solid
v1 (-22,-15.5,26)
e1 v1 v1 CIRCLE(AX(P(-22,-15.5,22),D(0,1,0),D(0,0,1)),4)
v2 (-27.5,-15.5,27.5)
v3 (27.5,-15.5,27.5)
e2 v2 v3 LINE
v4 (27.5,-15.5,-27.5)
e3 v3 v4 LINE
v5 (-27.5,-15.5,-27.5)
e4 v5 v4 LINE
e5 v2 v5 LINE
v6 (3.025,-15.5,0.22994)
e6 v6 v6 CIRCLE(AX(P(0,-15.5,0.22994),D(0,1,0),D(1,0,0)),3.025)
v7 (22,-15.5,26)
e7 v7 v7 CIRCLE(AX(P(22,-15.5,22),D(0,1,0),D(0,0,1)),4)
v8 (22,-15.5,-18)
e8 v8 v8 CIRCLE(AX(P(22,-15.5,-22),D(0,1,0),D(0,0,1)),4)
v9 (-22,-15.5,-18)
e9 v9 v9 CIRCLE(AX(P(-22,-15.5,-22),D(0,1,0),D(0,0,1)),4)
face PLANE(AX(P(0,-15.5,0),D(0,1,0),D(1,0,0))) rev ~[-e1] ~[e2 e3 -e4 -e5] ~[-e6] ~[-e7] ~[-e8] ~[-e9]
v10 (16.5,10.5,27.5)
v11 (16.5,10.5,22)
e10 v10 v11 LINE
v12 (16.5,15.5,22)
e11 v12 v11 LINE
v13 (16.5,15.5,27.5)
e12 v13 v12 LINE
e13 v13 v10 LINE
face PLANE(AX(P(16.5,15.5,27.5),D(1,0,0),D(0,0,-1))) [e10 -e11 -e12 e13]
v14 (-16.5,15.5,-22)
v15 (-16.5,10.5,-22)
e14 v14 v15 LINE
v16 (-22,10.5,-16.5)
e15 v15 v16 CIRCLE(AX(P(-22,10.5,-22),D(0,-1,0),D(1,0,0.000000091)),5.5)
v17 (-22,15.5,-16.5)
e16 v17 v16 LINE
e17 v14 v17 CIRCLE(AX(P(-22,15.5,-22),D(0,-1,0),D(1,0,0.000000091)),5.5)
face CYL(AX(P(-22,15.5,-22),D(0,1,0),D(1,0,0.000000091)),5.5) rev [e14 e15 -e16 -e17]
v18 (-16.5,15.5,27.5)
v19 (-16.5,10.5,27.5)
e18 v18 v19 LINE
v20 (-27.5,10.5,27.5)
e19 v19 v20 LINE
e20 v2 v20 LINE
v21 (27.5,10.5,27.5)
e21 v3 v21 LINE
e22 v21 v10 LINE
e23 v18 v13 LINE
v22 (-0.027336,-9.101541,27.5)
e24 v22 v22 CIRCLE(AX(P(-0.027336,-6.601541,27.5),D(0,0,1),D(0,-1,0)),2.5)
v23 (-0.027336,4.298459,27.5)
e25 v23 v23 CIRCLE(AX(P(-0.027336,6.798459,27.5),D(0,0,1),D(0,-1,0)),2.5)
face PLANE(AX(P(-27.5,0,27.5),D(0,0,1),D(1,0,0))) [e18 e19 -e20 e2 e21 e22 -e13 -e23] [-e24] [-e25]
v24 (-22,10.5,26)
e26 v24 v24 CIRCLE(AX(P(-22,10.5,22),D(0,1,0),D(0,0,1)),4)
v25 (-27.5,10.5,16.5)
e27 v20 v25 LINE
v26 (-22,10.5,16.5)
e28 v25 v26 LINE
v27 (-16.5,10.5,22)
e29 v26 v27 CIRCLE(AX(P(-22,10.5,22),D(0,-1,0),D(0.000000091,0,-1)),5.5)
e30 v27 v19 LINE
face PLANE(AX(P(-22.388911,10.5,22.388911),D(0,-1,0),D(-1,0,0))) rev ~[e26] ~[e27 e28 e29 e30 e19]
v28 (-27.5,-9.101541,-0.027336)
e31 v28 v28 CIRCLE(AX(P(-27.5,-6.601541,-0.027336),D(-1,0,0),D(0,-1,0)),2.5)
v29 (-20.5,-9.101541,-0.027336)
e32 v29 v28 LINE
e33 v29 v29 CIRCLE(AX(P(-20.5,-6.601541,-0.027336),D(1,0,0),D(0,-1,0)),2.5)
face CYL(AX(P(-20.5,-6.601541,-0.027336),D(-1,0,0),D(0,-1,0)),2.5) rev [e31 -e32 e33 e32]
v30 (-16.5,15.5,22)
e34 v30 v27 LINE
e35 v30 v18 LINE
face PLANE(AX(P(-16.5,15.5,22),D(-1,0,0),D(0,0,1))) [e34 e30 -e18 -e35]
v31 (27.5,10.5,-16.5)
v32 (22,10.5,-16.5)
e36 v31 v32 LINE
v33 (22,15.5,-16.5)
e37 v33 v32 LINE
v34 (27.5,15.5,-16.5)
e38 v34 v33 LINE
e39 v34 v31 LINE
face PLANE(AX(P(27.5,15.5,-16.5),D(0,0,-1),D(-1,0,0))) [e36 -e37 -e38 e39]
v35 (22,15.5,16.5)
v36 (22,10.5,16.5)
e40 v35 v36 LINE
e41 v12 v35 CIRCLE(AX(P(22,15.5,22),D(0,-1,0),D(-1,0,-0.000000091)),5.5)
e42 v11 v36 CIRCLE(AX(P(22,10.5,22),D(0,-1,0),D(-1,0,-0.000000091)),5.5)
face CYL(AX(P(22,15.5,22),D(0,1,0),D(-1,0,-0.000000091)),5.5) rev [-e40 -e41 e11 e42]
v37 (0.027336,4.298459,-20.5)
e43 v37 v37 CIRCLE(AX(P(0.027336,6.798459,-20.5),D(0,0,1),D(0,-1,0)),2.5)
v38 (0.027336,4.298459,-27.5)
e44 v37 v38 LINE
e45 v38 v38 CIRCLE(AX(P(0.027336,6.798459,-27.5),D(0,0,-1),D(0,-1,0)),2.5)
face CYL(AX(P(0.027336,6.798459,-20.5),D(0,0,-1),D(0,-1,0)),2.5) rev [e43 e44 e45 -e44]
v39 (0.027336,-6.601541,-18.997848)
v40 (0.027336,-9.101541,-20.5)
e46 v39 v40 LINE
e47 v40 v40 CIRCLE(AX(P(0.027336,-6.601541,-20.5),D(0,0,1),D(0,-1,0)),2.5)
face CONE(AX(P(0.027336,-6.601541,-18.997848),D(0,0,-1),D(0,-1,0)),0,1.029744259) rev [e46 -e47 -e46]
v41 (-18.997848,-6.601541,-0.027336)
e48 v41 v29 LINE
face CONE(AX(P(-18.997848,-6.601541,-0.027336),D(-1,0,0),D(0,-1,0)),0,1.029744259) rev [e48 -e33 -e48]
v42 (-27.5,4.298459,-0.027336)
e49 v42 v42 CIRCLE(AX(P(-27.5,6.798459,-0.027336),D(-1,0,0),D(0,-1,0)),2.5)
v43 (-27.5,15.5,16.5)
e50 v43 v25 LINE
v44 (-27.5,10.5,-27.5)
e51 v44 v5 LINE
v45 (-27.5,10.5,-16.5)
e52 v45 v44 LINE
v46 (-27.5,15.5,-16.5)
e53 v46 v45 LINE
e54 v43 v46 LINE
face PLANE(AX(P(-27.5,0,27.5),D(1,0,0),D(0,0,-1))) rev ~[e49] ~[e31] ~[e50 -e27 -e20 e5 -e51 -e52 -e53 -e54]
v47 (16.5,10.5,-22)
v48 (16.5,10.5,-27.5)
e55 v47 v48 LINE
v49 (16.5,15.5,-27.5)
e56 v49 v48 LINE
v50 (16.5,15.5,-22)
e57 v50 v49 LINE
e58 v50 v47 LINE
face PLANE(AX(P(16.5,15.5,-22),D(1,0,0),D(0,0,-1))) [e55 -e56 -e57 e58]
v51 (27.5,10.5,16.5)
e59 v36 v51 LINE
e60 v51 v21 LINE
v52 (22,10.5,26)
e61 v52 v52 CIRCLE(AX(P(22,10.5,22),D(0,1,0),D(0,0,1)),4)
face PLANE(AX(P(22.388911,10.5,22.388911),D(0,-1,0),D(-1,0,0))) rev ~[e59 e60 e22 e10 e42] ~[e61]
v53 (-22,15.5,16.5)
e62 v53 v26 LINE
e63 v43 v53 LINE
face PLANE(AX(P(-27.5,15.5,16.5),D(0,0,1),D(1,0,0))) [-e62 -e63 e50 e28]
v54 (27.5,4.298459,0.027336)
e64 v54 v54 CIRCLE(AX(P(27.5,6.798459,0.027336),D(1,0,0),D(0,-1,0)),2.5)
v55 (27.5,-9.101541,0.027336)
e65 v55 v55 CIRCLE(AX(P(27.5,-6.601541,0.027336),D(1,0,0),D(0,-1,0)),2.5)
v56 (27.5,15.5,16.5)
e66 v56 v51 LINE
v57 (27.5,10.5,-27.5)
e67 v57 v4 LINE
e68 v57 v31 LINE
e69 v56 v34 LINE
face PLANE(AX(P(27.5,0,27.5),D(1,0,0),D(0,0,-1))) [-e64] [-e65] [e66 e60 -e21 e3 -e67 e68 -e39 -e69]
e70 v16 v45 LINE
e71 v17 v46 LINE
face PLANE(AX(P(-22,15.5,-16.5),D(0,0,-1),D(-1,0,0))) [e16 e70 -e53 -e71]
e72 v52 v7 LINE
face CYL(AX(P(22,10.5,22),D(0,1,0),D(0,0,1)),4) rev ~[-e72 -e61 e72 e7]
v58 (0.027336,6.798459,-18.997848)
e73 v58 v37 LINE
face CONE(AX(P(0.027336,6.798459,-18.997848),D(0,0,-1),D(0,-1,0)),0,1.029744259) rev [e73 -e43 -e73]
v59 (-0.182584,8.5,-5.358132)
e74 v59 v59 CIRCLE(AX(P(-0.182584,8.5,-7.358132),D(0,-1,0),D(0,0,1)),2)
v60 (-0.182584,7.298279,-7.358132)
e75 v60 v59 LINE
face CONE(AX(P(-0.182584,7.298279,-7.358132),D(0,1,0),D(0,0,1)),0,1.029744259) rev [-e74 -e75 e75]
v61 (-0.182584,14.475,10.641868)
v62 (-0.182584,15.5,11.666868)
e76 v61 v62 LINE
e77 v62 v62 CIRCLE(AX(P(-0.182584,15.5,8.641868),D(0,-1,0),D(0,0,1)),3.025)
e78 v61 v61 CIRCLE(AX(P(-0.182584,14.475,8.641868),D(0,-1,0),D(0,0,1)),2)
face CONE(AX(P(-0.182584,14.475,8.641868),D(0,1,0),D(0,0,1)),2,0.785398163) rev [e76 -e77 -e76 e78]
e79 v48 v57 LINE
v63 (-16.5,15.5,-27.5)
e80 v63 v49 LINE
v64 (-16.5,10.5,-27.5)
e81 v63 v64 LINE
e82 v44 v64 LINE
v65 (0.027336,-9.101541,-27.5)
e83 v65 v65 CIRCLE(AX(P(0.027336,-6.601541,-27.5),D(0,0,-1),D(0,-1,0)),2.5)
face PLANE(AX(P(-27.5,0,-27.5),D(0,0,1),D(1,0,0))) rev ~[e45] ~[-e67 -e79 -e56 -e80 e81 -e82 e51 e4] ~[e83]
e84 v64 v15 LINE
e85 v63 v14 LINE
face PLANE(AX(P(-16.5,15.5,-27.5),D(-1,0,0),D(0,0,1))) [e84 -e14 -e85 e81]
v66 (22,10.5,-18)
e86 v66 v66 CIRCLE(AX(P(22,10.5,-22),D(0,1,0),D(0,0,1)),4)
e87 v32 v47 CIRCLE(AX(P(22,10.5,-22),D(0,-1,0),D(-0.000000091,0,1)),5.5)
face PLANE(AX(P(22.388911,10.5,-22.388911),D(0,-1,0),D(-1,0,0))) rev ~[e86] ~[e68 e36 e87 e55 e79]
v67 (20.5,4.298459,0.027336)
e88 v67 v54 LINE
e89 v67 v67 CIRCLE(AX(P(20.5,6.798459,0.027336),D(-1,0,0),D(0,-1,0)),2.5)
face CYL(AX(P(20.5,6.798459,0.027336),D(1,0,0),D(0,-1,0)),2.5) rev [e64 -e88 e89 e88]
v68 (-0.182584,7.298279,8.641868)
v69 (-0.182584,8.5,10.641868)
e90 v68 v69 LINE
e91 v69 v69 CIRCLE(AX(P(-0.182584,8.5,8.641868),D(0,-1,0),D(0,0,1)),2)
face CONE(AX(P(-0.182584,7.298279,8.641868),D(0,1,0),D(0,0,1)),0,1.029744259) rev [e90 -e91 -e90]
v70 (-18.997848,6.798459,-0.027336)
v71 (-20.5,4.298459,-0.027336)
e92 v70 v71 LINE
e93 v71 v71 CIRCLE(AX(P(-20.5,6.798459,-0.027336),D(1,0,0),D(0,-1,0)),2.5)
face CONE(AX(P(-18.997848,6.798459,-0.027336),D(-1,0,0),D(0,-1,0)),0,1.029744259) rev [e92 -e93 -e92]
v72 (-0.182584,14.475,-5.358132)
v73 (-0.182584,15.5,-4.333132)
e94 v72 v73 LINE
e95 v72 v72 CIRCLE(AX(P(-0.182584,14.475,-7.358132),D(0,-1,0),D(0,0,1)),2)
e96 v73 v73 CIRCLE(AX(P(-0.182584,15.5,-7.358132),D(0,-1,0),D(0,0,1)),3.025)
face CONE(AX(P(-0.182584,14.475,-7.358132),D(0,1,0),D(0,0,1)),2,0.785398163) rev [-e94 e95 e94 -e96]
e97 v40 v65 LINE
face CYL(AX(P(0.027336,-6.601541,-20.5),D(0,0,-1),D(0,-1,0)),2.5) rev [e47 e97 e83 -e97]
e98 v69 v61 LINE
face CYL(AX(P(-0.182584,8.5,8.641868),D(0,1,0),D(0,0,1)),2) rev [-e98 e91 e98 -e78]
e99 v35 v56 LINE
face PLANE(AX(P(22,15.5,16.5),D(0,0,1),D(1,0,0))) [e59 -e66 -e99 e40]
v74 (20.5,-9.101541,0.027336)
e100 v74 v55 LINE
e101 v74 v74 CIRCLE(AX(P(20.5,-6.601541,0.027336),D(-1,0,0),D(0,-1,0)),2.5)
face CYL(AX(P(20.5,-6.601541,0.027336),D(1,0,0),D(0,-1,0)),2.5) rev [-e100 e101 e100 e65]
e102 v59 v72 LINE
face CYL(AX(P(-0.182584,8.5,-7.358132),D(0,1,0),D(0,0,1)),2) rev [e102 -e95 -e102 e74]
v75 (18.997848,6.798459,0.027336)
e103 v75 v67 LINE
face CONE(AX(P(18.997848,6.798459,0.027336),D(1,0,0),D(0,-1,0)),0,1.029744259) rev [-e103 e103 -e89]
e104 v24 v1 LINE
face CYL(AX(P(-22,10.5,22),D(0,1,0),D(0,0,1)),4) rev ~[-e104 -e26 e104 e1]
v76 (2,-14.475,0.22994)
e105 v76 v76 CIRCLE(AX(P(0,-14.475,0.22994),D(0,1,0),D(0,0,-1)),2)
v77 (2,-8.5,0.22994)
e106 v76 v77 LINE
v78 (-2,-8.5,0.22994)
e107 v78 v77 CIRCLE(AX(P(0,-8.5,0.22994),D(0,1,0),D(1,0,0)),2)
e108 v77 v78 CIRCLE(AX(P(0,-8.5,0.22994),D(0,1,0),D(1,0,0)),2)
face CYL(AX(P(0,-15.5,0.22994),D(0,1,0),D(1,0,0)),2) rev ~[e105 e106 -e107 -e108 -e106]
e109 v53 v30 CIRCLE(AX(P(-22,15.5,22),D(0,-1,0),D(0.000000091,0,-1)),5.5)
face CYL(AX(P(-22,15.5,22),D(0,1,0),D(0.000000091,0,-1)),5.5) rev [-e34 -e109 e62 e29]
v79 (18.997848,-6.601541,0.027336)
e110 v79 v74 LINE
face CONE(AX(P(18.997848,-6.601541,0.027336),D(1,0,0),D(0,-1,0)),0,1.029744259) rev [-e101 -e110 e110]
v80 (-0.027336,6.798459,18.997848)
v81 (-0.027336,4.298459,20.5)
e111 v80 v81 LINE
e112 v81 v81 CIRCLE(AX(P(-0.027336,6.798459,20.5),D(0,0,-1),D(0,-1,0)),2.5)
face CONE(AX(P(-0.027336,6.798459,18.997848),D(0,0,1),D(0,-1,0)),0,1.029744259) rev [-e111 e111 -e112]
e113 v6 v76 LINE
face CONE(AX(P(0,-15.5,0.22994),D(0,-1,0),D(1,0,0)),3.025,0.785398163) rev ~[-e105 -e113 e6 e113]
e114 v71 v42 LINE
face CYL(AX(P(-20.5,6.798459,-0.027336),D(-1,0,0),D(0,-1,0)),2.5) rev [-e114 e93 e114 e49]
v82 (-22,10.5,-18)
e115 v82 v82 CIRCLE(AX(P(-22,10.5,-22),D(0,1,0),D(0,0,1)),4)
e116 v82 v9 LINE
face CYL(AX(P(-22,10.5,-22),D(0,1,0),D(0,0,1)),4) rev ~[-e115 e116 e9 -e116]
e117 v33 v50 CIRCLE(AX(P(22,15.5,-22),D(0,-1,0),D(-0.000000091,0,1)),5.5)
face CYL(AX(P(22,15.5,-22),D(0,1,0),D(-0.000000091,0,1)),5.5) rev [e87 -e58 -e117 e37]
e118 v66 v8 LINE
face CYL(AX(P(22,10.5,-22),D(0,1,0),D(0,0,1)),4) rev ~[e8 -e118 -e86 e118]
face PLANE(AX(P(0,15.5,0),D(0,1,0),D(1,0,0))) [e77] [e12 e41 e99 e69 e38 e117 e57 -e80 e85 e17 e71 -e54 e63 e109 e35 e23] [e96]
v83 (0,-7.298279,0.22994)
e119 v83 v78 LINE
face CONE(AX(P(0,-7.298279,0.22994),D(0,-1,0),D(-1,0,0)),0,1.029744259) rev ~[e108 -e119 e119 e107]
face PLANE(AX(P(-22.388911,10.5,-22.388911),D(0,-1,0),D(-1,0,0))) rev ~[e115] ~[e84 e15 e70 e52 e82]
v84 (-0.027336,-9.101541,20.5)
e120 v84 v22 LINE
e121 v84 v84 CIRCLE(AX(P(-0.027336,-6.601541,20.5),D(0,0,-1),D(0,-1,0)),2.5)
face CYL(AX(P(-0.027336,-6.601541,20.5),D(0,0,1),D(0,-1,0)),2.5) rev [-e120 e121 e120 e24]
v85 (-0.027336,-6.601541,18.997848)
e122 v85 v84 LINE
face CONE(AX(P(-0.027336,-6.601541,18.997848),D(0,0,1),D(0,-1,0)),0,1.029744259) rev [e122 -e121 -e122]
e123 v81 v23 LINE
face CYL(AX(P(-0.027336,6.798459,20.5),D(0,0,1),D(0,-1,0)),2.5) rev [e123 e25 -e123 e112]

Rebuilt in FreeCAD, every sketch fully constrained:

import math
import FreeCAD as App
import Part
import Sketcher

V = App.Vector
Q = App.Units.Quantity

doc = App.newDocument("Part")
params = doc.addObject("Spreadsheet::Sheet", "Params")
for row, (alias, value) in enumerate([
    ("sketch1_width", "55 mm"),
    ("pad1_length", "31 mm"),
    ("sketch2_radius", "5.5 mm"),
    ("sketch2_width", "11 mm"),
    ("pocket1_length", "5 mm"),
    ("sketch3_diameter", "8 mm"),
    ("sketch4_width", "2 mm"),
    ("sketch4_height", "7.5 mm"),
    ("groove_angle", "360 deg"),
    ("groove2_angle", "360 deg"),
    ("linearpattern_pitch", "16 mm"),
    ("linearpattern2_pitch", "13.4 mm"),
    ("sketch6_height", "2 mm"),
    ("sketch6_width", "7.5 mm"),
    ("groove3_angle", "360 deg"),
    ("sketch7_width", "2 mm"),
    ("sketch7_height", "7.5 mm"),
    ("groove4_angle", "360 deg"),
    ("sketch8_height", "2 mm"),
    ("sketch8_width", "7.5 mm"),
    ("groove5_angle", "360 deg"),
    ("sketch9_diameter", "4 mm"),
    ("hole_diameter", "4 mm"),
    ("hole_depth", "7 mm"),
    ("hole_csink_diameter", "6.05 mm"),
], start=1):
    params.set(f"A{row}", alias)
    params.set(f"B{row}", "=" + value)
    params.setAlias(f"B{row}", alias)

body = doc.addObject("PartDesign::Body", "Body")

# Sketch on XZ plane
sketch1 = body.newObject("Sketcher::SketchObject", "Sketch")
sketch1.AttachmentSupport = (doc.getObject("XZ_Plane"), [""])
sketch1.MapMode = "FlatFace"
sketch1.addGeometry(Part.LineSegment(V(-28, -28, 0), V(-28, 28, 0)), False)
sketch1.addGeometry(Part.LineSegment(V(-28, 28, 0), V(28, 28, 0)), False)
sketch1.addGeometry(Part.LineSegment(V(28, 28, 0), V(28, -28, 0)), False)
sketch1.addGeometry(Part.LineSegment(V(28, -28, 0), V(-28, -28, 0)), False)
sketch1.addConstraint(Sketcher.Constraint("Coincident", 0, 2, 1, 1))
sketch1.addConstraint(Sketcher.Constraint("Coincident", 1, 2, 2, 1))
sketch1.addConstraint(Sketcher.Constraint("Coincident", 2, 2, 3, 1))
sketch1.addConstraint(Sketcher.Constraint("Coincident", 3, 2, 0, 1))
sketch1.addConstraint(Sketcher.Constraint("Vertical", 0))
sketch1.addConstraint(Sketcher.Constraint("Horizontal", 1))
sketch1.addConstraint(Sketcher.Constraint("Vertical", 2))
sketch1.addConstraint(Sketcher.Constraint("Horizontal", 3))
sketch1.addConstraint(Sketcher.Constraint("Symmetric", 0, 2, 2, 2, -1, 1))
sketch1.addConstraint(Sketcher.Constraint("Equal", 3, 0))
sketch1.addConstraint(Sketcher.Constraint("DistanceX", 1, 1, 1, 2, Q("55 mm")))
sketch1.setExpression("Constraints[10]", "Params.sketch1_width")
pad1 = body.newObject("PartDesign::Pad", "Pad")
pad1.Profile = sketch1
pad1.setExpression("Length", "Params.pad1_length")
pad1.Midplane = True

# Sketch on XZ plane
sketch2 = body.newObject("Sketcher::SketchObject", "Sketch001")
sketch2.AttachmentSupport = (doc.getObject("XZ_Plane"), [""])
sketch2.MapMode = "FlatFace"
sketch2.AttachmentOffset = App.Placement(V(0, 0, -15.5), App.Rotation())
sketch2.addGeometry(Part.LineSegment(V(16, -28, 0), V(16, -22, 0)), False)
sketch2.addGeometry(Part.ArcOfCircle(Part.Circle(V(22, -22, 0), V(0, 0, 1), 6), math.radians(90), math.radians(180)), False)
sketch2.addGeometry(Part.LineSegment(V(22, -16, 0), V(28, -16, 0)), False)
sketch2.addGeometry(Part.LineSegment(V(28, -16, 0), V(28, -28, 0)), False)
sketch2.addGeometry(Part.LineSegment(V(28, -28, 0), V(16, -28, 0)), False)
sketch2.addGeometry(Part.LineSegment(V(28, 16, 0), V(22, 16, 0)), False)
sketch2.addGeometry(Part.ArcOfCircle(Part.Circle(V(22, 22, 0), V(0, 0, 1), 6), math.radians(-180), math.radians(-90)), False)
sketch2.addGeometry(Part.LineSegment(V(16, 22, 0), V(16, 28, 0)), False)
sketch2.addGeometry(Part.LineSegment(V(16, 28, 0), V(28, 28, 0)), False)
sketch2.addGeometry(Part.LineSegment(V(28, 28, 0), V(28, 16, 0)), False)
sketch2.addGeometry(Part.LineSegment(V(-16, 28, 0), V(-16, 22, 0)), False)
sketch2.addGeometry(Part.ArcOfCircle(Part.Circle(V(-22, 22, 0), V(0, 0, 1), 6), math.radians(-90), math.radians(0)), False)
sketch2.addGeometry(Part.LineSegment(V(-22, 16, 0), V(-28, 16, 0)), False)
sketch2.addGeometry(Part.LineSegment(V(-28, 16, 0), V(-28, 28, 0)), False)
sketch2.addGeometry(Part.LineSegment(V(-28, 28, 0), V(-16, 28, 0)), False)
sketch2.addGeometry(Part.LineSegment(V(-28, -16, 0), V(-22, -16, 0)), False)
sketch2.addGeometry(Part.ArcOfCircle(Part.Circle(V(-22, -22, 0), V(0, 0, 1), 6), math.radians(0), math.radians(90)), False)
sketch2.addGeometry(Part.LineSegment(V(-16, -22, 0), V(-16, -28, 0)), False)
sketch2.addGeometry(Part.LineSegment(V(-16, -28, 0), V(-28, -28, 0)), False)
sketch2.addGeometry(Part.LineSegment(V(-28, -28, 0), V(-28, -16, 0)), False)
sketch2.addConstraint(Sketcher.Constraint("Tangent", 0, 2, 1, 2))
sketch2.addConstraint(Sketcher.Constraint("Tangent", 1, 1, 2, 1))
sketch2.addConstraint(Sketcher.Constraint("Coincident", 2, 2, 3, 1))
sketch2.addConstraint(Sketcher.Constraint("Coincident", 3, 2, 4, 1))
sketch2.addConstraint(Sketcher.Constraint("Coincident", 4, 2, 0, 1))
sketch2.addConstraint(Sketcher.Constraint("Tangent", 5, 2, 6, 2))
sketch2.addConstraint(Sketcher.Constraint("Tangent", 6, 1, 7, 1))
sketch2.addConstraint(Sketcher.Constraint("Coincident", 7, 2, 8, 1))
sketch2.addConstraint(Sketcher.Constraint("Coincident", 8, 2, 9, 1))
sketch2.addConstraint(Sketcher.Constraint("Coincident", 9, 2, 5, 1))
sketch2.addConstraint(Sketcher.Constraint("Tangent", 10, 2, 11, 2))
sketch2.addConstraint(Sketcher.Constraint("Tangent", 11, 1, 12, 1))
sketch2.addConstraint(Sketcher.Constraint("Coincident", 12, 2, 13, 1))
sketch2.addConstraint(Sketcher.Constraint("Coincident", 13, 2, 14, 1))
sketch2.addConstraint(Sketcher.Constraint("Coincident", 14, 2, 10, 1))
sketch2.addConstraint(Sketcher.Constraint("Tangent", 15, 2, 16, 2))
sketch2.addConstraint(Sketcher.Constraint("Tangent", 16, 1, 17, 1))
sketch2.addConstraint(Sketcher.Constraint("Coincident", 17, 2, 18, 1))
sketch2.addConstraint(Sketcher.Constraint("Coincident", 18, 2, 19, 1))
sketch2.addConstraint(Sketcher.Constraint("Coincident", 19, 2, 15, 1))
sketch2.addConstraint(Sketcher.Constraint("Vertical", 0))
sketch2.addConstraint(Sketcher.Constraint("Horizontal", 2))
sketch2.addConstraint(Sketcher.Constraint("Vertical", 3))
sketch2.addConstraint(Sketcher.Constraint("Horizontal", 4))
sketch2.addConstraint(Sketcher.Constraint("Horizontal", 5))
sketch2.addConstraint(Sketcher.Constraint("Vertical", 7))
sketch2.addConstraint(Sketcher.Constraint("Horizontal", 8))
sketch2.addConstraint(Sketcher.Constraint("Vertical", 9))
sketch2.addConstraint(Sketcher.Constraint("Vertical", 10))
sketch2.addConstraint(Sketcher.Constraint("Horizontal", 12))
sketch2.addConstraint(Sketcher.Constraint("Vertical", 13))
sketch2.addConstraint(Sketcher.Constraint("Horizontal", 14))
sketch2.addConstraint(Sketcher.Constraint("Horizontal", 15))
sketch2.addConstraint(Sketcher.Constraint("Vertical", 17))
sketch2.addConstraint(Sketcher.Constraint("Horizontal", 18))
sketch2.addConstraint(Sketcher.Constraint("Vertical", 19))
sketch2.addConstraint(Sketcher.Constraint("Equal", 1, 6))
sketch2.addConstraint(Sketcher.Constraint("Equal", 6, 11))
sketch2.addConstraint(Sketcher.Constraint("Equal", 11, 16))
sketch2.addConstraint(Sketcher.Constraint("Symmetric", 1, 3, 11, 3, -1, 1))
sketch2.addConstraint(Sketcher.Constraint("Symmetric", 6, 3, 16, 3, -1, 1))
sketch2.addConstraint(Sketcher.Constraint("Symmetric", 3, 2, 13, 2, -1, 1))
sketch2.addConstraint(Sketcher.Constraint("Symmetric", 8, 2, 18, 2, -1, 1))
sketch2.addConstraint(Sketcher.Constraint("Symmetric", 6, 3, 11, 3, -2))
sketch2.addConstraint(Sketcher.Constraint("Symmetric", 8, 2, 13, 2, -2))
sketch2.addConstraint(Sketcher.Constraint("Equal", 15, 0))
sketch2.addConstraint(Sketcher.Constraint("Radius", 1, Q("5.5 mm")))
sketch2.addConstraint(Sketcher.Constraint("DistanceX", 4, 2, 4, 1, Q("11 mm")))
sketch2.addConstraint(Sketcher.Constraint("DistanceX", -1, 1, 1, 3, Q("22 mm")))
sketch2.addConstraint(Sketcher.Constraint("DistanceY", 1, 3, -1, 1, Q("22 mm")))
sketch2.setExpression("Constraints[46]", "Params.sketch2_radius")
sketch2.setExpression("Constraints[47]", "Params.sketch2_width")
pocket1 = body.newObject("PartDesign::Pocket", "Pocket")
pocket1.Profile = sketch2
pocket1.setExpression("Length", "Params.pocket1_length")
pocket1.Reversed = True

# Sketch on XZ plane
sketch3 = body.newObject("Sketcher::SketchObject", "Sketch002")
sketch3.AttachmentSupport = (doc.getObject("XZ_Plane"), [""])
sketch3.MapMode = "FlatFace"
sketch3.AttachmentOffset = App.Placement(V(0, 0, -10.5), App.Rotation())
sketch3.addGeometry(Part.Circle(V(22, -22, 0), V(0, 0, 1), 4), False)
sketch3.addGeometry(Part.Circle(V(22, 22, 0), V(0, 0, 1), 4), False)
sketch3.addGeometry(Part.Circle(V(-22, 22, 0), V(0, 0, 1), 4), False)
sketch3.addGeometry(Part.Circle(V(-22, -22, 0), V(0, 0, 1), 4), False)
sketch3.addConstraint(Sketcher.Constraint("Equal", 0, 1))
sketch3.addConstraint(Sketcher.Constraint("Equal", 1, 2))
sketch3.addConstraint(Sketcher.Constraint("Equal", 2, 3))
sketch3.addConstraint(Sketcher.Constraint("Symmetric", 0, 3, 2, 3, -1, 1))
sketch3.addConstraint(Sketcher.Constraint("Symmetric", 1, 3, 3, 3, -1, 1))
sketch3.addConstraint(Sketcher.Constraint("Symmetric", 1, 3, 2, 3, -2))
sketch3.addConstraint(Sketcher.Constraint("Diameter", 0, Q("8 mm")))
sketch3.addConstraint(Sketcher.Constraint("DistanceX", -1, 1, 0, 3, Q("22 mm")))
sketch3.addConstraint(Sketcher.Constraint("DistanceY", 0, 3, -1, 1, Q("22 mm")))
sketch3.setExpression("Constraints[6]", "Params.sketch3_diameter")
pocket2 = body.newObject("PartDesign::Pocket", "Pocket001")
pocket2.Profile = sketch3
pocket2.Type = "ThroughAll"
pocket2.Reversed = True

# Sketch on YZ plane
sketch4 = body.newObject("Sketcher::SketchObject", "Sketch003")
sketch4.AttachmentSupport = (doc.getObject("YZ_Plane"), [""])
sketch4.MapMode = "FlatFace"
sketch4.AttachmentOffset = App.Placement(V(0, 0, -0.027336), App.Rotation())
sketch4.addGeometry(Part.LineSegment(V(-6.6, 19, 0), V(-6.6, 27.5, 0)), False)
sketch4.addGeometry(Part.LineSegment(V(-6.6, 27.5, 0), V(-8.6, 27.5, 0)), False)
sketch4.addGeometry(Part.LineSegment(V(-8.6, 27.5, 0), V(-9.1, 28, 0)), False)
sketch4.addGeometry(Part.LineSegment(V(-9.1, 28, 0), V(-9.1, 20.5, 0)), False)
sketch4.addGeometry(Part.LineSegment(V(-9.1, 20.5, 0), V(-6.6, 19, 0)), False)
sketch4.addGeometry(Part.LineSegment(V(-6.6, 28, 0), V(-6.6, 19, 0)), True)  # axis
sketch4.addConstraint(Sketcher.Constraint("Coincident", 0, 2, 1, 1))
sketch4.addConstraint(Sketcher.Constraint("Coincident", 1, 2, 2, 1))
sketch4.addConstraint(Sketcher.Constraint("Coincident", 2, 2, 3, 1))
sketch4.addConstraint(Sketcher.Constraint("Coincident", 3, 2, 4, 1))
sketch4.addConstraint(Sketcher.Constraint("Coincident", 4, 2, 0, 1))
sketch4.addConstraint(Sketcher.Constraint("Vertical", 0))
sketch4.addConstraint(Sketcher.Constraint("Horizontal", 1))
sketch4.addConstraint(Sketcher.Constraint("Vertical", 3))
sketch4.addConstraint(Sketcher.Constraint("Vertical", 5))
sketch4.addConstraint(Sketcher.Constraint("Coincident", 5, 2, 4, 2))
sketch4.addConstraint(Sketcher.Constraint("Horizontal", 2, 2, 5, 1))
sketch4.addConstraint(Sketcher.Constraint("DistanceX", 1, 2, 1, 1, Q("2 mm")))
sketch4.addConstraint(Sketcher.Constraint("Angle", 2, Q("135 deg")))
sketch4.addConstraint(Sketcher.Constraint("Angle", 4, Q("-31 deg")))
sketch4.addConstraint(Sketcher.Constraint("DistanceY", 3, 2, 3, 1, Q("7.5 mm")))
sketch4.addConstraint(Sketcher.Constraint("DistanceY", -1, 1, 2, 2, Q("28 mm")))
sketch4.addConstraint(Sketcher.Constraint("DistanceY", 3, 2, 1, 2, Q("7 mm")))
sketch4.addConstraint(Sketcher.Constraint("DistanceX", 0, 2, -1, 1, Q("6.601541 mm")))
sketch4.setExpression("Constraints[11]", "Params.sketch4_width")
sketch4.setExpression("Constraints[14]", "Params.sketch4_height")
groove = body.newObject("PartDesign::Groove", "Groove")
groove.Profile = sketch4
groove.ReferenceAxis = (sketch4, ["Axis0"])
groove.setExpression("Angle", "Params.groove_angle")

# Sketch on YZ plane
sketch5 = body.newObject("Sketcher::SketchObject", "Sketch004")
sketch5.AttachmentSupport = (doc.getObject("YZ_Plane"), [""])
sketch5.MapMode = "FlatFace"
sketch5.AttachmentOffset = App.Placement(V(0, 0, -0.182584), App.Rotation())
sketch5.addGeometry(Part.LineSegment(V(7.3, -7.4, 0), V(15.5, -7.4, 0)), False)
sketch5.addGeometry(Part.LineSegment(V(15.5, -7.4, 0), V(15.5, -4.3, 0)), False)
sketch5.addGeometry(Part.LineSegment(V(15.5, -4.3, 0), V(14.5, -5.4, 0)), False)
sketch5.addGeometry(Part.LineSegment(V(14.5, -5.4, 0), V(8.5, -5.4, 0)), False)
sketch5.addGeometry(Part.LineSegment(V(8.5, -5.4, 0), V(7.3, -7.4, 0)), False)
sketch5.addGeometry(Part.LineSegment(V(15.5, -7.4, 0), V(7.3, -7.4, 0)), True)  # axis
sketch5.addConstraint(Sketcher.Constraint("Coincident", 0, 2, 1, 1))
sketch5.addConstraint(Sketcher.Constraint("Coincident", 1, 2, 2, 1))
sketch5.addConstraint(Sketcher.Constraint("Coincident", 2, 2, 3, 1))
sketch5.addConstraint(Sketcher.Constraint("Coincident", 3, 2, 4, 1))
sketch5.addConstraint(Sketcher.Constraint("Coincident", 4, 2, 0, 1))
sketch5.addConstraint(Sketcher.Constraint("Horizontal", 0))
sketch5.addConstraint(Sketcher.Constraint("Vertical", 1))
sketch5.addConstraint(Sketcher.Constraint("Horizontal", 3))
sketch5.addConstraint(Sketcher.Constraint("Horizontal", 5))
sketch5.addConstraint(Sketcher.Constraint("Coincident", 5, 1, 0, 2))
sketch5.addConstraint(Sketcher.Constraint("Equal", 0, 5))
sketch5.addConstraint(Sketcher.Constraint("Angle", 2, Q("-135 deg")))
sketch5.addConstraint(Sketcher.Constraint("Angle", 4, Q("-121 deg")))
sketch5.addConstraint(Sketcher.Constraint("DistanceY", 0, 2, 2, 2, Q("2 mm")))
sketch5.addConstraint(Sketcher.Constraint("DistanceX", 3, 2, 1, 2, Q("7 mm")))
sketch5.addConstraint(Sketcher.Constraint("DistanceX", -1, 1, 0, 2, Q("15.5 mm")))
sketch5.addConstraint(Sketcher.Constraint("DistanceX", 3, 2, 3, 1, Q("5.975 mm")))
sketch5.addConstraint(Sketcher.Constraint("DistanceY", 0, 2, -1, 1, Q("7.358132 mm")))
groove2 = body.newObject("PartDesign::Groove", "Groove001")
groove2.Profile = sketch5
groove2.ReferenceAxis = (sketch5, ["Axis0"])
groove2.setExpression("Angle", "Params.groove2_angle")
doc.recompute()

linearpattern = body.newObject("PartDesign::LinearPattern", "LinearPattern")
linearpattern.Originals = [groove2]
linearpattern.Direction = (doc.getObject("Z_Axis"), [""])
linearpattern.Mode = "offset"
linearpattern.setExpression("Offset", "Params.linearpattern_pitch")
linearpattern.Occurrences = 2
body.Tip = linearpattern
doc.recompute()

linearpattern2 = body.newObject("PartDesign::LinearPattern", "LinearPattern001")
linearpattern2.Originals = [groove]
linearpattern2.Direction = (doc.getObject("Y_Axis"), [""])
linearpattern2.Mode = "offset"
linearpattern2.setExpression("Offset", "Params.linearpattern2_pitch")
linearpattern2.Occurrences = 2
body.Tip = linearpattern2
doc.recompute()

polarpattern = body.newObject("PartDesign::PolarPattern", "PolarPattern")
polarpattern.Originals = [groove]
polarpattern.Axis = (doc.getObject("Y_Axis"), [""])
polarpattern.Angle = 360
polarpattern.Occurrences = 4
body.Tip = polarpattern

# Sketch on XY plane
sketch6 = body.newObject("Sketcher::SketchObject", "Sketch005")
sketch6.AttachmentSupport = (doc.getObject("XY_Plane"), [""])
sketch6.MapMode = "FlatFace"
sketch6.AttachmentOffset = App.Placement(V(0, 0, 0.027336), App.Rotation())
sketch6.addGeometry(Part.LineSegment(V(19, 6.8, 0), V(27.5, 6.8, 0)), False)
sketch6.addGeometry(Part.LineSegment(V(27.5, 6.8, 0), V(27.5, 4.8, 0)), False)
sketch6.addGeometry(Part.LineSegment(V(27.5, 4.8, 0), V(28, 4.3, 0)), False)
sketch6.addGeometry(Part.LineSegment(V(28, 4.3, 0), V(20.5, 4.3, 0)), False)
sketch6.addGeometry(Part.LineSegment(V(20.5, 4.3, 0), V(19, 6.8, 0)), False)
sketch6.addGeometry(Part.LineSegment(V(28, 6.8, 0), V(19, 6.8, 0)), True)  # axis
sketch6.addConstraint(Sketcher.Constraint("Coincident", 0, 2, 1, 1))
sketch6.addConstraint(Sketcher.Constraint("Coincident", 1, 2, 2, 1))
sketch6.addConstraint(Sketcher.Constraint("Coincident", 2, 2, 3, 1))
sketch6.addConstraint(Sketcher.Constraint("Coincident", 3, 2, 4, 1))
sketch6.addConstraint(Sketcher.Constraint("Coincident", 4, 2, 0, 1))
sketch6.addConstraint(Sketcher.Constraint("Horizontal", 0))
sketch6.addConstraint(Sketcher.Constraint("Vertical", 1))
sketch6.addConstraint(Sketcher.Constraint("Horizontal", 3))
sketch6.addConstraint(Sketcher.Constraint("Horizontal", 5))
sketch6.addConstraint(Sketcher.Constraint("Coincident", 5, 2, 4, 2))
sketch6.addConstraint(Sketcher.Constraint("Vertical", 2, 2, 5, 1))
sketch6.addConstraint(Sketcher.Constraint("DistanceY", 1, 2, 1, 1, Q("2 mm")))
sketch6.addConstraint(Sketcher.Constraint("Angle", 2, Q("-45 deg")))
sketch6.addConstraint(Sketcher.Constraint("Angle", 4, Q("121 deg")))
sketch6.addConstraint(Sketcher.Constraint("DistanceX", 3, 2, 3, 1, Q("7.5 mm")))
sketch6.addConstraint(Sketcher.Constraint("DistanceX", -1, 1, 2, 2, Q("28 mm")))
sketch6.addConstraint(Sketcher.Constraint("DistanceX", 3, 2, 1, 2, Q("7 mm")))
sketch6.addConstraint(Sketcher.Constraint("DistanceY", -1, 1, 0, 2, Q("6.798459 mm")))
sketch6.setExpression("Constraints[11]", "Params.sketch6_height")
sketch6.setExpression("Constraints[14]", "Params.sketch6_width")
groove3 = body.newObject("PartDesign::Groove", "Groove002")
groove3.Profile = sketch6
groove3.ReferenceAxis = (sketch6, ["Axis0"])
groove3.setExpression("Angle", "Params.groove3_angle")

# Sketch on YZ plane
sketch7 = body.newObject("Sketcher::SketchObject", "Sketch006")
sketch7.AttachmentSupport = (doc.getObject("YZ_Plane"), [""])
sketch7.MapMode = "FlatFace"
sketch7.AttachmentOffset = App.Placement(V(0, 0, 0.027336), App.Rotation())
sketch7.addGeometry(Part.LineSegment(V(6.8, -19, 0), V(6.8, -27.5, 0)), False)
sketch7.addGeometry(Part.LineSegment(V(6.8, -27.5, 0), V(4.8, -27.5, 0)), False)
sketch7.addGeometry(Part.LineSegment(V(4.8, -27.5, 0), V(4.3, -28, 0)), False)
sketch7.addGeometry(Part.LineSegment(V(4.3, -28, 0), V(4.3, -20.5, 0)), False)
sketch7.addGeometry(Part.LineSegment(V(4.3, -20.5, 0), V(6.8, -19, 0)), False)
sketch7.addGeometry(Part.LineSegment(V(6.8, -28, 0), V(6.8, -19, 0)), True)  # axis
sketch7.addConstraint(Sketcher.Constraint("Coincident", 0, 2, 1, 1))
sketch7.addConstraint(Sketcher.Constraint("Coincident", 1, 2, 2, 1))
sketch7.addConstraint(Sketcher.Constraint("Coincident", 2, 2, 3, 1))
sketch7.addConstraint(Sketcher.Constraint("Coincident", 3, 2, 4, 1))
sketch7.addConstraint(Sketcher.Constraint("Coincident", 4, 2, 0, 1))
sketch7.addConstraint(Sketcher.Constraint("Vertical", 0))
sketch7.addConstraint(Sketcher.Constraint("Horizontal", 1))
sketch7.addConstraint(Sketcher.Constraint("Vertical", 3))
sketch7.addConstraint(Sketcher.Constraint("Vertical", 5))
sketch7.addConstraint(Sketcher.Constraint("Coincident", 5, 2, 4, 2))
sketch7.addConstraint(Sketcher.Constraint("Horizontal", 2, 2, 5, 1))
sketch7.addConstraint(Sketcher.Constraint("DistanceX", 1, 2, 1, 1, Q("2 mm")))
sketch7.addConstraint(Sketcher.Constraint("Angle", 2, Q("-135 deg")))
sketch7.addConstraint(Sketcher.Constraint("Angle", 4, Q("31 deg")))
sketch7.addConstraint(Sketcher.Constraint("DistanceY", 3, 1, 3, 2, Q("7.5 mm")))
sketch7.addConstraint(Sketcher.Constraint("DistanceY", 2, 2, -1, 1, Q("28 mm")))
sketch7.addConstraint(Sketcher.Constraint("DistanceY", 1, 2, 3, 2, Q("7 mm")))
sketch7.addConstraint(Sketcher.Constraint("DistanceX", -1, 1, 0, 2, Q("6.798459 mm")))
sketch7.setExpression("Constraints[11]", "Params.sketch7_width")
sketch7.setExpression("Constraints[14]", "Params.sketch7_height")
groove4 = body.newObject("PartDesign::Groove", "Groove003")
groove4.Profile = sketch7
groove4.ReferenceAxis = (sketch7, ["Axis0"])
groove4.setExpression("Angle", "Params.groove4_angle")

# Sketch on XY plane
sketch8 = body.newObject("Sketcher::SketchObject", "Sketch007")
sketch8.AttachmentSupport = (doc.getObject("XY_Plane"), [""])
sketch8.MapMode = "FlatFace"
sketch8.AttachmentOffset = App.Placement(V(0, 0, -0.027336), App.Rotation())
sketch8.addGeometry(Part.LineSegment(V(-19, 6.8, 0), V(-27.5, 6.8, 0)), False)
sketch8.addGeometry(Part.LineSegment(V(-27.5, 6.8, 0), V(-27.5, 4.8, 0)), False)
sketch8.addGeometry(Part.LineSegment(V(-27.5, 4.8, 0), V(-28, 4.3, 0)), False)
sketch8.addGeometry(Part.LineSegment(V(-28, 4.3, 0), V(-20.5, 4.3, 0)), False)
sketch8.addGeometry(Part.LineSegment(V(-20.5, 4.3, 0), V(-19, 6.8, 0)), False)
sketch8.addGeometry(Part.LineSegment(V(-28, 6.8, 0), V(-19, 6.8, 0)), True)  # axis
sketch8.addConstraint(Sketcher.Constraint("Coincident", 0, 2, 1, 1))
sketch8.addConstraint(Sketcher.Constraint("Coincident", 1, 2, 2, 1))
sketch8.addConstraint(Sketcher.Constraint("Coincident", 2, 2, 3, 1))
sketch8.addConstraint(Sketcher.Constraint("Coincident", 3, 2, 4, 1))
sketch8.addConstraint(Sketcher.Constraint("Coincident", 4, 2, 0, 1))
sketch8.addConstraint(Sketcher.Constraint("Horizontal", 0))
sketch8.addConstraint(Sketcher.Constraint("Vertical", 1))
sketch8.addConstraint(Sketcher.Constraint("Horizontal", 3))
sketch8.addConstraint(Sketcher.Constraint("Horizontal", 5))
sketch8.addConstraint(Sketcher.Constraint("Coincident", 5, 2, 4, 2))
sketch8.addConstraint(Sketcher.Constraint("Vertical", 2, 2, 5, 1))
sketch8.addConstraint(Sketcher.Constraint("DistanceY", 1, 2, 1, 1, Q("2 mm")))
sketch8.addConstraint(Sketcher.Constraint("Angle", 2, Q("-135 deg")))
sketch8.addConstraint(Sketcher.Constraint("Angle", 4, Q("59 deg")))
sketch8.addConstraint(Sketcher.Constraint("DistanceX", 3, 1, 3, 2, Q("7.5 mm")))
sketch8.addConstraint(Sketcher.Constraint("DistanceX", 2, 2, -1, 1, Q("28 mm")))
sketch8.addConstraint(Sketcher.Constraint("DistanceX", 1, 2, 3, 2, Q("7 mm")))
sketch8.addConstraint(Sketcher.Constraint("DistanceY", -1, 1, 0, 2, Q("6.798459 mm")))
sketch8.setExpression("Constraints[11]", "Params.sketch8_height")
sketch8.setExpression("Constraints[14]", "Params.sketch8_width")
groove5 = body.newObject("PartDesign::Groove", "Groove004")
groove5.Profile = sketch8
groove5.ReferenceAxis = (sketch8, ["Axis0"])
groove5.setExpression("Angle", "Params.groove5_angle")

# Sketch on XZ plane
sketch9 = body.newObject("Sketcher::SketchObject", "Sketch008")
sketch9.AttachmentSupport = (doc.getObject("XZ_Plane"), [""])
sketch9.MapMode = "FlatFace"
sketch9.AttachmentOffset = App.Placement(V(0, 0, 15.5), App.Rotation())
sketch9.addGeometry(Part.Circle(V(0, 0.2, 0), V(0, 0, 1), 2), False)
sketch9.addConstraint(Sketcher.Constraint("PointOnObject", 0, 3, -2))
sketch9.addConstraint(Sketcher.Constraint("Diameter", 0, Q("4 mm")))
sketch9.addConstraint(Sketcher.Constraint("DistanceY", -1, 1, 0, 3, Q("0.22994 mm")))
sketch9.setExpression("Constraints[1]", "Params.sketch9_diameter")
doc.recompute()
hole = body.newObject("PartDesign::Hole", "Hole")
hole.Profile = sketch9
hole.ThreadType = "None"
hole.setExpression("Diameter", "Params.hole_diameter")
hole.DepthType = "Dimension"
hole.setExpression("Depth", "Params.hole_depth")
hole.DrillPoint = "Angled"
hole.DrillPointAngle = 118
hole.HoleCutType = "Countersink"
hole.setExpression("HoleCutDiameter", "Params.hole_csink_diameter")
hole.HoleCutCountersinkAngle = 90

doc.recompute()
